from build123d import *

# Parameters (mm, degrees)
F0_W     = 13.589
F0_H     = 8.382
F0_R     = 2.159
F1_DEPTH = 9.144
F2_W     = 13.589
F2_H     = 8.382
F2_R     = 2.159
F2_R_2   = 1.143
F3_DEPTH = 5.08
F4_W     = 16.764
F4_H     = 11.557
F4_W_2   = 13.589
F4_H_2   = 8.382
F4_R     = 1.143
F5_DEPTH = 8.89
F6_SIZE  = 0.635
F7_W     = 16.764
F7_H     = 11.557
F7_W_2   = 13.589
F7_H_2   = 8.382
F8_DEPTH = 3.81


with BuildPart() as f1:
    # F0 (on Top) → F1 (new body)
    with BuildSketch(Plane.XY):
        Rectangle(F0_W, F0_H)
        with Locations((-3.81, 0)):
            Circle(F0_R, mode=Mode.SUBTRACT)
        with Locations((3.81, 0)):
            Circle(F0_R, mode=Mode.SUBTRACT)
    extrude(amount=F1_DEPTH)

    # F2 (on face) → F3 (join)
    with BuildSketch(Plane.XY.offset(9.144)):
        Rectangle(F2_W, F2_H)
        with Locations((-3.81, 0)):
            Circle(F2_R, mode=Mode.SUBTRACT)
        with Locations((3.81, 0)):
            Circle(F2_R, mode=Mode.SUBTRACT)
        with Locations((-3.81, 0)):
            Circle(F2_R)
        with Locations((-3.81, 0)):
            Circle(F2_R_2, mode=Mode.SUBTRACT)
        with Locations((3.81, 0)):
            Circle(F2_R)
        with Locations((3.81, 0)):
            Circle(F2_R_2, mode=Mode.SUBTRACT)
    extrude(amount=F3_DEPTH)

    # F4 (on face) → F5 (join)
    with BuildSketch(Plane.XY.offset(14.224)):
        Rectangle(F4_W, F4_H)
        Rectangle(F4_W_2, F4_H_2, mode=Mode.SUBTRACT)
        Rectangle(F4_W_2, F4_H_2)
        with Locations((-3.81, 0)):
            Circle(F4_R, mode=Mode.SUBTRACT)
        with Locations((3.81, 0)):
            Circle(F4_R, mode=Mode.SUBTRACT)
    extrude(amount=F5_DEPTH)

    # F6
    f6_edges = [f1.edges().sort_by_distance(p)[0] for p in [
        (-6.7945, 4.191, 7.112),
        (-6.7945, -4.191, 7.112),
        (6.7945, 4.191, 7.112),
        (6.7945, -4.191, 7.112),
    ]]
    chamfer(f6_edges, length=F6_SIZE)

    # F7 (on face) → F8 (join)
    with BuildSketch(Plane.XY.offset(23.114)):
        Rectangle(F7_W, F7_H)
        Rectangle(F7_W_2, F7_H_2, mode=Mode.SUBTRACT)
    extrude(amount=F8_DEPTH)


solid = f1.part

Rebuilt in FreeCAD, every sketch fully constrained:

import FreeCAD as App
import Part
import Sketcher
Q = App.Units.Quantity


def edges_at(feature, points):
    """Names of the edges that pass closest to the given points."""
    edges = feature.Shape.Edges
    near = lambda p: min(range(len(edges)), key=lambda i: edges[i].distToShape(Part.Vertex(*p))[0])
    return sorted({f"Edge{near(p) + 1}" for p in points})


def add_polygon(sketch, points):
    """Adds a closed chain of lines whose ends are joined by coincident constraints."""
    first, n = sketch.GeometryCount, len(points)
    for a, b in zip(points, points[1:] + points[:1]):
        sketch.addGeometry(Part.LineSegment(App.Vector(*a, 0), App.Vector(*b, 0)), False)
    for i in range(n):
        sketch.addConstraint(Sketcher.Constraint("Coincident", first + i, 2, first + (i + 1) % n, 1))

doc = App.newDocument("Part")
body = doc.addObject("PartDesign::Body", "Body")

sketch1 = body.newObject("Sketcher::SketchObject", "Sketch")
sketch1.AttachmentSupport = (doc.getObject("XY_Plane"), [""])
sketch1.MapMode = "FlatFace"
add_polygon(sketch1, [(-6.8, 4.2), (-6.8, -4.2), (6.8, -4.2), (6.8, 4.2)])
sketch1.addGeometry(Part.Circle(App.Vector(-3.8, 0, 0), App.Vector(0, 0, 1), 2.2), False)
sketch1.addGeometry(Part.Circle(App.Vector(3.8, 0, 0), App.Vector(0, 0, 1), 2.2), False)
sketch1.addConstraint([
    Sketcher.Constraint("Vertical", 0),
    Sketcher.Constraint("Horizontal", 1),
    Sketcher.Constraint("Vertical", 2),
    Sketcher.Constraint("Horizontal", 3),
    Sketcher.Constraint("Equal", 4, 5),
    Sketcher.Constraint("Symmetric", 4, 3, 5, 3, -1, 1),
    Sketcher.Constraint("Symmetric", 0, 2, 2, 2, -1, 1),
    Sketcher.Constraint("PointOnObject", 4, 3, -1),
    Sketcher.Constraint("Diameter", 4, Q("0.17 in")),
    Sketcher.Constraint("DistanceY", 0, 2, 0, 1, Q("0.33 in")),
    Sketcher.Constraint("DistanceX", 4, 3, 5, 3, Q("0.3 in")),
    Sketcher.Constraint("DistanceX", 1, 1, 1, 2, Q("0.535 in")),
])
pad1 = body.newObject("PartDesign::Pad", "Pad")
pad1.Profile = sketch1
pad1.Length = Q("0.36 in")

sketch2 = body.newObject("Sketcher::SketchObject", "Sketch001")
sketch2.AttachmentSupport = (doc.getObject("XY_Plane"), [""])
sketch2.MapMode = "FlatFace"
sketch2.AttachmentOffset = App.Placement(App.Vector(0, 0, 0.36 * 25.4), App.Rotation())
add_polygon(sketch2, [(-6.8, 4.2), (-6.8, -4.2), (6.8, -4.2), (6.8, 4.2)])
sketch2.addGeometry(Part.Circle(App.Vector(-3.8, 0, 0), App.Vector(0, 0, 1), 1.1), False)
sketch2.addGeometry(Part.Circle(App.Vector(3.8, 0, 0), App.Vector(0, 0, 1), 1.1), False)
sketch2.addConstraint([
    Sketcher.Constraint("Vertical", 0),
    Sketcher.Constraint("Horizontal", 1),
    Sketcher.Constraint("Vertical", 2),
    Sketcher.Constraint("Horizontal", 3),
    Sketcher.Constraint("Equal", 4, 5),
    Sketcher.Constraint("Symmetric", 4, 3, 5, 3, -1, 1),
    Sketcher.Constraint("Symmetric", 0, 2, 2, 2, -1, 1),
    Sketcher.Constraint("PointOnObject", 4, 3, -1),
    Sketcher.Constraint("Diameter", 4, Q("0.09 in")),
    Sketcher.Constraint("DistanceY", 0, 2, 0, 1, Q("0.33 in")),
    Sketcher.Constraint("DistanceX", 4, 3, 5, 3, Q("0.3 in")),
    Sketcher.Constraint("DistanceX", 1, 1, 1, 2, Q("0.535 in")),
])
pad2 = body.newObject("PartDesign::Pad", "Pad001")
pad2.Profile = sketch2
pad2.Length = Q("0.2 in")

sketch3 = body.newObject("Sketcher::SketchObject", "Sketch002")
sketch3.AttachmentSupport = (doc.getObject("XY_Plane"), [""])
sketch3.MapMode = "FlatFace"
sketch3.AttachmentOffset = App.Placement(App.Vector(0, 0, 0.56 * 25.4), App.Rotation())
add_polygon(sketch3, [(-8.4, 5.8), (-8.4, -5.8), (8.4, -5.8), (8.4, 5.8)])
sketch3.addGeometry(Part.Circle(App.Vector(-3.8, 0, 0), App.Vector(0, 0, 1), 1.1), False)
sketch3.addGeometry(Part.Circle(App.Vector(3.8, 0, 0), App.Vector(0, 0, 1), 1.1), False)
sketch3.addConstraint([
    Sketcher.Constraint("Vertical", 0),
    Sketcher.Constraint("Horizontal", 1),
    Sketcher.Constraint("Vertical", 2),
    Sketcher.Constraint("Horizontal", 3),
    Sketcher.Constraint("Equal", 4, 5),
    Sketcher.Constraint("Symmetric", 4, 3, 5, 3, -1, 1),
    Sketcher.Constraint("Symmetric", 0, 2, 2, 2, -1, 1),
    Sketcher.Constraint("PointOnObject", 4, 3, -1),
    Sketcher.Constraint("Diameter", 4, Q("0.09 in")),
    Sketcher.Constraint("DistanceX", 1, 1, 1, 2, Q("0.66 in")),
    Sketcher.Constraint("DistanceX", 4, 3, 5, 3, Q("0.3 in")),
    Sketcher.Constraint("DistanceY", 0, 2, 0, 1, Q("0.455 in")),
])
pad3 = body.newObject("PartDesign::Pad", "Pad002")
pad3.Profile = sketch3
pad3.Length = Q("0.35 in")
doc.recompute()

chamfer = body.newObject("PartDesign::Chamfer", "Chamfer")
chamfer.Base = (pad3, edges_at(pad3, [
    (-6.795, 4.191, 7.112),
    (-6.795, -4.191, 7.112),
    (6.795, 4.191, 7.112),
    (6.795, -4.191, 7.112),
]))
chamfer.Size = Q("0.025 in")

sketch4 = body.newObject("Sketcher::SketchObject", "Sketch003")
sketch4.AttachmentSupport = (doc.getObject("XY_Plane"), [""])
sketch4.MapMode = "FlatFace"
sketch4.AttachmentOffset = App.Placement(App.Vector(0, 0, 0.91 * 25.4), App.Rotation())
add_polygon(sketch4, [(-8, 6), (-8, -6), (8, -6), (8, 6)])
add_polygon(sketch4, [(7, -4), (-7, -4), (-7, 4), (7, 4)])
sketch4.addConstraint([
    Sketcher.Constraint("Vertical", 0),
    Sketcher.Constraint("Horizontal", 1),
    Sketcher.Constraint("Vertical", 2),
    Sketcher.Constraint("Horizontal", 3),
    Sketcher.Constraint("Horizontal", 4),
    Sketcher.Constraint("Vertical", 5),
    Sketcher.Constraint("Horizontal", 6),
    Sketcher.Constraint("Vertical", 7),
    Sketcher.Constraint("Symmetric", 0, 2, 2, 2, -1, 1),
    Sketcher.Constraint("Symmetric", 4, 2, 6, 2, -1, 1),
    Sketcher.Constraint("DistanceX", 1, 1, 1, 2, Q("0.66 in")),
    Sketcher.Constraint("DistanceY", 5, 1, 5, 2, Q("0.33 in")),
    Sketcher.Constraint("DistanceX", 4, 2, 4, 1, Q("0.535 in")),
    Sketcher.Constraint("DistanceY", 0, 2, 0, 1, Q("0.455 in")),
])
pad4 = body.newObject("PartDesign::Pad", "Pad003")
pad4.Profile = sketch4
pad4.Length = Q("0.15 in")

doc.recompute()
